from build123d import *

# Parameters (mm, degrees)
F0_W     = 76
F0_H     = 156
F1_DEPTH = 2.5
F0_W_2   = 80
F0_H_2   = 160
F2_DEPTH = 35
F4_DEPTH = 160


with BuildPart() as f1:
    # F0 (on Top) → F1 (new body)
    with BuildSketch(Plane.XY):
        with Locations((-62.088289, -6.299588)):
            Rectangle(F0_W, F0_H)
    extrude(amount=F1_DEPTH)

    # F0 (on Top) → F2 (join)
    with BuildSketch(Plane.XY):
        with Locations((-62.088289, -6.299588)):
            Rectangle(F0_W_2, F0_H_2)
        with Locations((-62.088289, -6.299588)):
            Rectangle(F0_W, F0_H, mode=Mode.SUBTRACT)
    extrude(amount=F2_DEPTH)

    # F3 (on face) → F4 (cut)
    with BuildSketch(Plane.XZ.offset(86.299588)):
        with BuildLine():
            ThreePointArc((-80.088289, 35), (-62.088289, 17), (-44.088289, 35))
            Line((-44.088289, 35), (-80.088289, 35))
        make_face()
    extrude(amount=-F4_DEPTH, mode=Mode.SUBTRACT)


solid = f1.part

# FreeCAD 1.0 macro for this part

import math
import FreeCAD as App
import Part
import Sketcher
from FreeCAD import Vector
Q = App.Units.Quantity

doc = App.newDocument("Part")
body = doc.addObject("PartDesign::Body", "Body")

# Sketch on XY plane
sketch1 = body.newObject("Sketcher::SketchObject", "Sketch")
sketch1.AttachmentSupport = (doc.getObject("XY_Plane"), [""])
sketch1.MapMode = "FlatFace"
sketch1.addGeometry([
    Part.LineSegment(Vector(-100.088289, 71.700412, 0), Vector(-100.088289, -84.299588, 0)),
    Part.LineSegment(Vector(-100.088289, -84.299588, 0), Vector(-24.088289, -84.299588, 0)),
    Part.LineSegment(Vector(-24.088289, -84.299588, 0), Vector(-24.088289, 71.700412, 0)),
    Part.LineSegment(Vector(-24.088289, 71.700412, 0), Vector(-100.088289, 71.700412, 0)),
], False)
sketch1.addConstraint([
    Sketcher.Constraint("Coincident", 0, 2, 1, 1),
    Sketcher.Constraint("Coincident", 1, 2, 2, 1),
    Sketcher.Constraint("Coincident", 2, 2, 3, 1),
    Sketcher.Constraint("Coincident", 3, 2, 0, 1),
    Sketcher.Constraint("Vertical", 0),
    Sketcher.Constraint("Horizontal", 1),
    Sketcher.Constraint("Vertical", 2),
    Sketcher.Constraint("Horizontal", 3),
    Sketcher.Constraint("DistanceX", 1, 1, 1, 2, Q("76 mm")),
    Sketcher.Constraint("DistanceY", 0, 2, 0, 1, Q("156 mm")),
    Sketcher.Constraint("DistanceX", 0, 2, -1, 1, Q("100.088289 mm")),
    Sketcher.Constraint("DistanceY", 0, 2, -1, 1, Q("84.299588 mm")),
])
pad1 = body.newObject("PartDesign::Pad", "Pad")
pad1.Profile = sketch1
pad1.Length = 2.5

# Sketch on XY plane
sketch2 = body.newObject("Sketcher::SketchObject", "Sketch001")
sketch2.AttachmentSupport = (doc.getObject("XY_Plane"), [""])
sketch2.MapMode = "FlatFace"
sketch2.addGeometry([
    Part.LineSegment(Vector(-102.088289, 73.700412, 0), Vector(-102.088289, -86.299588, 0)),  # 0
    Part.LineSegment(Vector(-102.088289, -86.299588, 0), Vector(-22.088289, -86.299588, 0)),  # 1
    Part.LineSegment(Vector(-22.088289, -86.299588, 0), Vector(-22.088289, 73.700412, 0)),  # 2
    Part.LineSegment(Vector(-22.088289, 73.700412, 0), Vector(-102.088289, 73.700412, 0)),  # 3
    Part.LineSegment(Vector(-24.088289, -84.299588, 0), Vector(-100.088289, -84.299588, 0)),  # 4
    Part.LineSegment(Vector(-100.088289, -84.299588, 0), Vector(-100.088289, 71.700412, 0)),  # 5
    Part.LineSegment(Vector(-100.088289, 71.700412, 0), Vector(-24.088289, 71.700412, 0)),  # 6
    Part.LineSegment(Vector(-24.088289, 71.700412, 0), Vector(-24.088289, -84.299588, 0)),  # 7
], False)
sketch2.addConstraint([
    Sketcher.Constraint("Coincident", 0, 2, 1, 1),
    Sketcher.Constraint("Coincident", 1, 2, 2, 1),
    Sketcher.Constraint("Coincident", 2, 2, 3, 1),
    Sketcher.Constraint("Coincident", 3, 2, 0, 1),
    Sketcher.Constraint("Coincident", 4, 2, 5, 1),
    Sketcher.Constraint("Coincident", 5, 2, 6, 1),
    Sketcher.Constraint("Coincident", 6, 2, 7, 1),
    Sketcher.Constraint("Coincident", 7, 2, 4, 1),
    Sketcher.Constraint("Vertical", 0),
    Sketcher.Constraint("Horizontal", 1),
    Sketcher.Constraint("Vertical", 2),
    Sketcher.Constraint("Horizontal", 3),
    Sketcher.Constraint("Horizontal", 4),
    Sketcher.Constraint("Vertical", 5),
    Sketcher.Constraint("Horizontal", 6),
    Sketcher.Constraint("Vertical", 7),
    Sketcher.Constraint("DistanceX", 1, 1, 1, 2, Q("80 mm")),
    Sketcher.Constraint("DistanceX", 4, 2, 4, 1, Q("76 mm")),
    Sketcher.Constraint("DistanceY", 0, 2, 0, 1, Q("160 mm")),
    Sketcher.Constraint("DistanceY", 5, 1, 5, 2, Q("156 mm")),
    Sketcher.Constraint("DistanceX", 0, 2, 4, 2, Q("2 mm")),
    Sketcher.Constraint("DistanceY", 0, 2, 4, 2, Q("2 mm")),
    Sketcher.Constraint("DistanceX", 0, 2, -1, 1, Q("102.088289 mm")),
    Sketcher.Constraint("DistanceY", 0, 2, -1, 1, Q("86.299588 mm")),
])
pad2 = body.newObject("PartDesign::Pad", "Pad001")
pad2.Profile = sketch2
pad2.Length = 35

# Sketch on XZ plane
sketch3 = body.newObject("Sketcher::SketchObject", "Sketch002")
sketch3.AttachmentSupport = (doc.getObject("XZ_Plane"), [""])
sketch3.MapMode = "FlatFace"
sketch3.AttachmentOffset = App.Placement(Vector(0, 0, 86.299588), App.Rotation())
sketch3.addGeometry([
    Part.ArcOfCircle(Part.Circle(Vector(-62.088289, 35, 0), Vector(0, 0, 1), 18), math.radians(180), math.radians(360)),
    Part.LineSegment(Vector(-44.088289, 35, 0), Vector(-80.088289, 35, 0)),
], False)
sketch3.addConstraint([
    Sketcher.Constraint("Coincident", 0, 1, 1, 2),
    Sketcher.Constraint("Coincident", 1, 1, 0, 2),
    Sketcher.Constraint("Horizontal", 1),
    Sketcher.Constraint("Radius", 0, Q("18 mm")),
    Sketcher.Constraint("DistanceY", -1, 1, 0, 3, Q("35 mm")),
    Sketcher.Constraint("DistanceY", -1, 1, 0, 1, Q("35 mm")),
    Sketcher.Constraint("DistanceX", 0, 3, -1, 1, Q("62.088289 mm")),
])
pocket1 = body.newObject("PartDesign::Pocket", "Pocket")
pocket1.Profile = sketch3
pocket1.Length = 160

doc.recompute()
